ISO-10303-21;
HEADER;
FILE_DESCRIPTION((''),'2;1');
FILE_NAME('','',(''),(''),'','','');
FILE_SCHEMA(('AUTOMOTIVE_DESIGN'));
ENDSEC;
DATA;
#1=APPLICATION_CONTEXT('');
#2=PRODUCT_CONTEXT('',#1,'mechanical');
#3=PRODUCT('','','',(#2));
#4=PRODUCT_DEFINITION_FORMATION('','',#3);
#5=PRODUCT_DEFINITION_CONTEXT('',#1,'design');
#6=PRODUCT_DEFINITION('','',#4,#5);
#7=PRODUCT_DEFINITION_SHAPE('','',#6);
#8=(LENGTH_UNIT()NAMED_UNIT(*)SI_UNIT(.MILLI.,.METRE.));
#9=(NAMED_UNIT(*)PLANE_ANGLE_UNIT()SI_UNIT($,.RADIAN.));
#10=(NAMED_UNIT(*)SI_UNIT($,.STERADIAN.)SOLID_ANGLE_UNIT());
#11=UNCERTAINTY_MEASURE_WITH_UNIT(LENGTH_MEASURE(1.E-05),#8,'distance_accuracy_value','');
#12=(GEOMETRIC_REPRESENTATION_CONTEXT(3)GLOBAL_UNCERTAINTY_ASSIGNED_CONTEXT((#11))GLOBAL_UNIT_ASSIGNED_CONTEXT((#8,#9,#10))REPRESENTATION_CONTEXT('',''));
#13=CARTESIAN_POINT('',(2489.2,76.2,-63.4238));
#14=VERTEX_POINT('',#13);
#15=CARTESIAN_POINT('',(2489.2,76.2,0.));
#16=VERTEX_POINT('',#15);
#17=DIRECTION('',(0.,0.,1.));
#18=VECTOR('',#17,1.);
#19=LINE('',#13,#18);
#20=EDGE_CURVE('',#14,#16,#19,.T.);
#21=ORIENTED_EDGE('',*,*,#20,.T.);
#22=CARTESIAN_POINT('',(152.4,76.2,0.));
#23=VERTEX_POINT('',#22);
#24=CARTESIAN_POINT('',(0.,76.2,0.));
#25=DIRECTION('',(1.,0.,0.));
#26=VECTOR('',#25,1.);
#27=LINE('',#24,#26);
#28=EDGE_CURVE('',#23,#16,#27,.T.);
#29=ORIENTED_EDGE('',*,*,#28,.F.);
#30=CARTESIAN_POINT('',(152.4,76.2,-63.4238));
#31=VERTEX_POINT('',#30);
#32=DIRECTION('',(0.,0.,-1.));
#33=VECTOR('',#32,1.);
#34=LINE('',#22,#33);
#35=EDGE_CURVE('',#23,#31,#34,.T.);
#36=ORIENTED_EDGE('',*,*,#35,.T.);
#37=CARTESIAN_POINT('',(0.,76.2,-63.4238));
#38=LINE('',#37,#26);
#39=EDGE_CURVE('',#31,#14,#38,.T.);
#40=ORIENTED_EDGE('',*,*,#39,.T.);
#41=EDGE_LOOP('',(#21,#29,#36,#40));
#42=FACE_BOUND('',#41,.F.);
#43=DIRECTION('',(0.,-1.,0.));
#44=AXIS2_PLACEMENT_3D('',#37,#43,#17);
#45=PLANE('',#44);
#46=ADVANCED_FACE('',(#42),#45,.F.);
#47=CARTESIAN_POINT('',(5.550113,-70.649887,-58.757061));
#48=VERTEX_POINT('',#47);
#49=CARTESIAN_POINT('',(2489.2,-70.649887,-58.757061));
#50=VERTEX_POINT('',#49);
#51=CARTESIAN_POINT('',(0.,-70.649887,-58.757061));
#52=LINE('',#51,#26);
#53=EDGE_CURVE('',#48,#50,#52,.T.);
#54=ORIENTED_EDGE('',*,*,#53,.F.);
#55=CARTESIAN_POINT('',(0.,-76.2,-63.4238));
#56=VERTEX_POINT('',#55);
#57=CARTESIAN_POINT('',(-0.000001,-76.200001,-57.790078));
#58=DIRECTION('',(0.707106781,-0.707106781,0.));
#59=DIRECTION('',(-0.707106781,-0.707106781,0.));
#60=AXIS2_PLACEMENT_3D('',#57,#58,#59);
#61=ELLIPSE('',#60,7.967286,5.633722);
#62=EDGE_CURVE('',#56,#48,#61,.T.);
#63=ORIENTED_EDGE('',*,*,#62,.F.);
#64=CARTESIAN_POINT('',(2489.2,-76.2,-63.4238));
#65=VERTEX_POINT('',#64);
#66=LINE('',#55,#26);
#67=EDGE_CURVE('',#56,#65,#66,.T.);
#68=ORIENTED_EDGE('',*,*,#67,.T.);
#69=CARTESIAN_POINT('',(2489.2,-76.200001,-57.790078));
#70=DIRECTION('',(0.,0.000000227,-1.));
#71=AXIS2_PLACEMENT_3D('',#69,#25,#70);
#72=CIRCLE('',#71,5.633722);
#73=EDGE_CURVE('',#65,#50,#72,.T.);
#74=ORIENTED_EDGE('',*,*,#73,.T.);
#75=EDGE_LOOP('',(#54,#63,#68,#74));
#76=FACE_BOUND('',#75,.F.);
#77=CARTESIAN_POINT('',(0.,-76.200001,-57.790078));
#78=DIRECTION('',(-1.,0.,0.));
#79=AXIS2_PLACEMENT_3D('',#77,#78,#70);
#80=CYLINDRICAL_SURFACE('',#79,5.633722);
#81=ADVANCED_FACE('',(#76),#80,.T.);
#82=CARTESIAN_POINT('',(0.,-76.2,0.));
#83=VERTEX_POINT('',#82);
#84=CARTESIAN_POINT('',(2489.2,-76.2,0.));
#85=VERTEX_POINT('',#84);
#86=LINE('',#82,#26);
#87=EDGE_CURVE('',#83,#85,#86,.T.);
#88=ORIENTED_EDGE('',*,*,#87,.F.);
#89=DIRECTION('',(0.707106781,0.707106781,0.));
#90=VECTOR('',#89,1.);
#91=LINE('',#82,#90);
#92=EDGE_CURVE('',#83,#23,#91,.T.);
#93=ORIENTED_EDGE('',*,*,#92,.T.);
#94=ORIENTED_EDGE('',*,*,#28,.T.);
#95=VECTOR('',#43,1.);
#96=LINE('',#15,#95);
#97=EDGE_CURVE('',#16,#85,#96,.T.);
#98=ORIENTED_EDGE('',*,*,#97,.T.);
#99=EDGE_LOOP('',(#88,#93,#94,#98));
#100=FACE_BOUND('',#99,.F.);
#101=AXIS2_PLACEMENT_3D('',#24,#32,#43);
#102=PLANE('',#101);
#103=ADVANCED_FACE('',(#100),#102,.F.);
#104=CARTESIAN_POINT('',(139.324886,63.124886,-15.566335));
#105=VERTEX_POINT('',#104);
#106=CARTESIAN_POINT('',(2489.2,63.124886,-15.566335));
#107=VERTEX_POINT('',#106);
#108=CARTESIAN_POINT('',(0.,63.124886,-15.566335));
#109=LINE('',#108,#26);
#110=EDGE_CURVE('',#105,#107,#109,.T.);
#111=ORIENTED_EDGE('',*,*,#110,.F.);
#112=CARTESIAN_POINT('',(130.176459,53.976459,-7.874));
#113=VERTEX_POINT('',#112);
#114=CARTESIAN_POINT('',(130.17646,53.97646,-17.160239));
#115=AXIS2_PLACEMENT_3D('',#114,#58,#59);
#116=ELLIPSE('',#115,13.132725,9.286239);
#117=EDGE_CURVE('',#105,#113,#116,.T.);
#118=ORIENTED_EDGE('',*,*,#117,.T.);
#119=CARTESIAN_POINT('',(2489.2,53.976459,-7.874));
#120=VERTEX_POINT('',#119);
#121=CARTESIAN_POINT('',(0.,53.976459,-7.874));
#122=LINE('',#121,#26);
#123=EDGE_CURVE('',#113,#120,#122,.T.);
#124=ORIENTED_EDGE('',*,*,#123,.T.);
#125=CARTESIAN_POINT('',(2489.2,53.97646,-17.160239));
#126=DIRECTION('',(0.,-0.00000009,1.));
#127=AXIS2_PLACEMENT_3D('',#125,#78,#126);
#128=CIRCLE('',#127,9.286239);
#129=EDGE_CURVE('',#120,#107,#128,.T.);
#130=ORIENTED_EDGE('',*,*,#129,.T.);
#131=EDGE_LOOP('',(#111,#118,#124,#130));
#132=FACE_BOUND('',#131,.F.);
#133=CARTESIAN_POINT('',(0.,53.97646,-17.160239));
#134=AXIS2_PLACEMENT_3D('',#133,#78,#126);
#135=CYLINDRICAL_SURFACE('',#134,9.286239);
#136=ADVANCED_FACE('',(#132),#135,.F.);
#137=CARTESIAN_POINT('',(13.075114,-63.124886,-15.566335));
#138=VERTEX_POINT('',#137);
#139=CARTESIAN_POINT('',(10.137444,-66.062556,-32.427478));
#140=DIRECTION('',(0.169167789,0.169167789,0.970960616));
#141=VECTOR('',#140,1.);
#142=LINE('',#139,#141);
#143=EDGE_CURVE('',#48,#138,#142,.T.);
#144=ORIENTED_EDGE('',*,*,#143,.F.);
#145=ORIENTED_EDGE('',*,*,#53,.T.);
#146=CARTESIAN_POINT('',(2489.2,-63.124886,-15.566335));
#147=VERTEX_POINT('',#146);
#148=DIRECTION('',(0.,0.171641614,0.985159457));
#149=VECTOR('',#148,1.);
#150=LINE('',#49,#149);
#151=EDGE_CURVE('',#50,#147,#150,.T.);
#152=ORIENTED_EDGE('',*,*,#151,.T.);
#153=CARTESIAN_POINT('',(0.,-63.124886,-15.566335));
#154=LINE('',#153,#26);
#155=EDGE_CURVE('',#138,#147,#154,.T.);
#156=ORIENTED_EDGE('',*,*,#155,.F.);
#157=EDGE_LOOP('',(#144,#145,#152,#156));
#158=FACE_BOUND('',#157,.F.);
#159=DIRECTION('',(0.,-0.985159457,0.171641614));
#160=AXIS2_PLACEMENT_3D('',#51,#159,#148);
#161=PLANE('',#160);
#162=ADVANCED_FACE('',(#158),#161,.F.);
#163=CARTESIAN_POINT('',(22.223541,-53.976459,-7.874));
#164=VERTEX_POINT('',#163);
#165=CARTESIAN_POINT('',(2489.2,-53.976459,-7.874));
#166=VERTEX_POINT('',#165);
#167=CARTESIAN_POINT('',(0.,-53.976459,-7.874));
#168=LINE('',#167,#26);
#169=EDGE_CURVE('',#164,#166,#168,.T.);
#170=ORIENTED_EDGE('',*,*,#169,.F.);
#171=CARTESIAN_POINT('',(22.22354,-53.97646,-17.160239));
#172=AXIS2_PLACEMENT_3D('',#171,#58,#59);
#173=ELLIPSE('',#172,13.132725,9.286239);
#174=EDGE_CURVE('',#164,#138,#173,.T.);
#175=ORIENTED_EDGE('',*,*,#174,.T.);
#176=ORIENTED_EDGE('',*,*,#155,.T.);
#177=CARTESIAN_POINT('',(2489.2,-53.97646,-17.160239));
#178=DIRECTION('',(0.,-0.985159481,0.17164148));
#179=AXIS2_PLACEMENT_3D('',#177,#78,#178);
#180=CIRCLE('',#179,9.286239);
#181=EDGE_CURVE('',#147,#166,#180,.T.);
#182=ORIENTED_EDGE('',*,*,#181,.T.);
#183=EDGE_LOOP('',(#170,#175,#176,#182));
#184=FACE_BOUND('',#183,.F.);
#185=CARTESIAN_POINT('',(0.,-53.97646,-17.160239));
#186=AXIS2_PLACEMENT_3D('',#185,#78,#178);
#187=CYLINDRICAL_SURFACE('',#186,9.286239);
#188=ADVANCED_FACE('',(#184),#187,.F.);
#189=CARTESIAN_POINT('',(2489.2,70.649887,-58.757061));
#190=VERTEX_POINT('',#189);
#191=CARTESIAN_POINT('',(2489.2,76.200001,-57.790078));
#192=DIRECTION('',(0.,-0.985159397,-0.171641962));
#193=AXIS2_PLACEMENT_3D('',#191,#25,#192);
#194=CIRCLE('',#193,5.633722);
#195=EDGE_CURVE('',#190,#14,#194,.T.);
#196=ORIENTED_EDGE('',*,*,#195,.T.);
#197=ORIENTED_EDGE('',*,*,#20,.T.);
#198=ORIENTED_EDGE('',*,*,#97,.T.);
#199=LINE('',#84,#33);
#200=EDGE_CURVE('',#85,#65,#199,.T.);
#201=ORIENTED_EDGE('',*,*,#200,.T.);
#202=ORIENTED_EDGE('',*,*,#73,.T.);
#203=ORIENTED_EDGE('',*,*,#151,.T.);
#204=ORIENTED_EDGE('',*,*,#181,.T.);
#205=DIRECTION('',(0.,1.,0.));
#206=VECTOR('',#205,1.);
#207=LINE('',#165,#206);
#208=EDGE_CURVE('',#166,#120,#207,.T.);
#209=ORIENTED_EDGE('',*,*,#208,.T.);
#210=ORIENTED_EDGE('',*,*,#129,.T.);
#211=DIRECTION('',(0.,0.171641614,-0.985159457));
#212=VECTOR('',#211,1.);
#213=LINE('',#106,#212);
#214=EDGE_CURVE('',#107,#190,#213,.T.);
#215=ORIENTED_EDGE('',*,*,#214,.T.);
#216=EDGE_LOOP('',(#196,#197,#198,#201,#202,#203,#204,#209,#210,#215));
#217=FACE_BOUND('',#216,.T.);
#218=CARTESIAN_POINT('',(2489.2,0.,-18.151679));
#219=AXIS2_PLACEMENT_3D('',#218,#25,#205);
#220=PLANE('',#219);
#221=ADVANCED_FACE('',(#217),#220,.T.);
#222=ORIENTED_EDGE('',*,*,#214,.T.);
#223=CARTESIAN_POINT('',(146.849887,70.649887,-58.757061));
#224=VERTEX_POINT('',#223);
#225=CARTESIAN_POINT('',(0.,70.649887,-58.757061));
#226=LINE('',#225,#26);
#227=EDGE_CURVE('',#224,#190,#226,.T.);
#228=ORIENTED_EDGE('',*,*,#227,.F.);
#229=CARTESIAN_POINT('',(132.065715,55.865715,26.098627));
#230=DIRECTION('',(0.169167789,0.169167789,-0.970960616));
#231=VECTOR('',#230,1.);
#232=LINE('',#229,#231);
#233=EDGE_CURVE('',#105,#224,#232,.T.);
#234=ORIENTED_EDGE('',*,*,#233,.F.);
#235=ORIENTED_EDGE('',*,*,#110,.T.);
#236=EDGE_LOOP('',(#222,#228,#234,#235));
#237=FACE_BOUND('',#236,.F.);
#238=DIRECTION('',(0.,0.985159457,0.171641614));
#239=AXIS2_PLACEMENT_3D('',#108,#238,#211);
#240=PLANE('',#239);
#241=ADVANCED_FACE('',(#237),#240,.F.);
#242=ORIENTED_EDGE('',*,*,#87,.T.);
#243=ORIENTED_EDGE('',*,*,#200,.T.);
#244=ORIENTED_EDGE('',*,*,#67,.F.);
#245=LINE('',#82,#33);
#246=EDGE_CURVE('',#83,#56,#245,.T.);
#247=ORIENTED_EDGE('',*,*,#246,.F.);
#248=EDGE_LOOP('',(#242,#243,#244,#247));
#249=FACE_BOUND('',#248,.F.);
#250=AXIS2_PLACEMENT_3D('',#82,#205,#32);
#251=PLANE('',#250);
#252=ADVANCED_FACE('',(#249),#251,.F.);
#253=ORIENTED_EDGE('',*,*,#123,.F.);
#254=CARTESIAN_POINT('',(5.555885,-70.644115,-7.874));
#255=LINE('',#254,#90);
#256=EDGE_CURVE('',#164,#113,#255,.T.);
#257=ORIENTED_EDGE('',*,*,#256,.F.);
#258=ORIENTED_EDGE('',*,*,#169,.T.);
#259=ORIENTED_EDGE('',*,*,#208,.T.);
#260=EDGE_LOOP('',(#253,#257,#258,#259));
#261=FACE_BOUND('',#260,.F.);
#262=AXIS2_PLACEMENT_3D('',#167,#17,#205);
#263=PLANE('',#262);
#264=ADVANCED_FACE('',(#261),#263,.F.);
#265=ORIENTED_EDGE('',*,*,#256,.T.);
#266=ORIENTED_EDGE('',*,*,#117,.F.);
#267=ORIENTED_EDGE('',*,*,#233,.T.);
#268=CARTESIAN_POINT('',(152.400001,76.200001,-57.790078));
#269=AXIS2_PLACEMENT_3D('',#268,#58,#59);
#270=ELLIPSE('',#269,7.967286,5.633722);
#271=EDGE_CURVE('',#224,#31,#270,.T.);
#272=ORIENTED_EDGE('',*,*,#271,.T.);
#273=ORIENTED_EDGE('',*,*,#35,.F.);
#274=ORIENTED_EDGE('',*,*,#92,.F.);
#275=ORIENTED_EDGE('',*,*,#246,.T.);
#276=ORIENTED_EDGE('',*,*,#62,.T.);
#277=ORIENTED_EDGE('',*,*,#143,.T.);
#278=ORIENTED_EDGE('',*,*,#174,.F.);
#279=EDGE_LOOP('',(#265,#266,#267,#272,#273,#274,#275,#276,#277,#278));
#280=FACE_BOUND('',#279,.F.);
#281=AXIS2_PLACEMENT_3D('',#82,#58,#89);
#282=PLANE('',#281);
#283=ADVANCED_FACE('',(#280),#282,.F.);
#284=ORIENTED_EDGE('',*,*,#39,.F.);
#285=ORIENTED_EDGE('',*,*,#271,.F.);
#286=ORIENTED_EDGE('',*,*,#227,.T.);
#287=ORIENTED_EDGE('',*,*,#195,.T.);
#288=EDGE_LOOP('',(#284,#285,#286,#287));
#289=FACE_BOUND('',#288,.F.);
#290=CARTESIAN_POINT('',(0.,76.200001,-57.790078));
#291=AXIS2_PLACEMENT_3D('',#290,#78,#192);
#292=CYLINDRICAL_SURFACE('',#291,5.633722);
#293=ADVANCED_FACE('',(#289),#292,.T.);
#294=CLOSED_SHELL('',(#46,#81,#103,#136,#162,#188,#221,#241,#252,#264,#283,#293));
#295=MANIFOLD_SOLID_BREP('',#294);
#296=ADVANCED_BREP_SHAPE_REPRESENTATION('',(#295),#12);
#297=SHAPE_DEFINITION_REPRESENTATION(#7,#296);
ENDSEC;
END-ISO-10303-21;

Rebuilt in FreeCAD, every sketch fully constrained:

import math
import FreeCAD as App
import Part
import Sketcher

V = App.Vector
Q = App.Units.Quantity


def add_polygon(sketch, points):
    """Adds a closed chain of lines whose ends are joined by coincident constraints."""
    first, n = sketch.GeometryCount, len(points)
    for a, b in zip(points, points[1:] + points[:1]):
        sketch.addGeometry(Part.LineSegment(App.Vector(*a, 0), App.Vector(*b, 0)), False)
    for i in range(n):
        sketch.addConstraint(Sketcher.Constraint("Coincident", first + i, 2, first + (i + 1) % n, 1))

doc = App.newDocument("Part")
body = doc.addObject("PartDesign::Body", "Body")

sketch1 = body.newObject("Sketcher::SketchObject", "Sketch")
sketch1.AttachmentSupport = (doc.getObject("YZ_Plane"), [""])
sketch1.MapMode = "FlatFace"
sketch1.addGeometry(Part.LineSegment(V(76, 0, 0), V(-76, 0, 0)), False)
sketch1.addGeometry(Part.LineSegment(V(-76, 0, 0), V(-76, -63, 0)), False)
sketch1.addGeometry(Part.ArcOfCircle(Part.Circle(V(-76, -58, 0), V(0, 0, 1), 6), math.radians(-90), math.radians(-10)), False)
sketch1.addGeometry(Part.LineSegment(V(-71, -59, 0), V(-63, -16, 0)), False)
sketch1.addGeometry(Part.ArcOfCircle(Part.Circle(V(-54, -17, 0), V(0, 0, 1), 9), math.radians(90), math.radians(170)), False)
sketch1.addGeometry(Part.LineSegment(V(-54, -8, 0), V(54, -8, 0)), False)
sketch1.addGeometry(Part.ArcOfCircle(Part.Circle(V(54, -17, 0), V(0, 0, 1), 9), math.radians(10), math.radians(90)), False)
sketch1.addGeometry(Part.LineSegment(V(63, -16, 0), V(71, -59, 0)), False)
sketch1.addGeometry(Part.ArcOfCircle(Part.Circle(V(76, -58, 0), V(0, 0, 1), 6), math.radians(-170), math.radians(-90)), False)
sketch1.addGeometry(Part.LineSegment(V(76, -63, 0), V(76, 0, 0)), False)
sketch1.addConstraint(Sketcher.Constraint("Coincident", 0, 2, 1, 1))
sketch1.addConstraint(Sketcher.Constraint("Coincident", 1, 2, 2, 1))
sketch1.addConstraint(Sketcher.Constraint("Tangent", 2, 2, 3, 1))
sketch1.addConstraint(Sketcher.Constraint("Tangent", 3, 2, 4, 2))
sketch1.addConstraint(Sketcher.Constraint("Tangent", 4, 1, 5, 1))
sketch1.addConstraint(Sketcher.Constraint("Tangent", 5, 2, 6, 2))
sketch1.addConstraint(Sketcher.Constraint("Tangent", 6, 1, 7, 1))
sketch1.addConstraint(Sketcher.Constraint("Tangent", 7, 2, 8, 1))
sketch1.addConstraint(Sketcher.Constraint("Coincident", 8, 2, 9, 1))
sketch1.addConstraint(Sketcher.Constraint("Coincident", 9, 2, 0, 1))
sketch1.addConstraint(Sketcher.Constraint("Horizontal", 0))
sketch1.addConstraint(Sketcher.Constraint("Vertical", 1))
sketch1.addConstraint(Sketcher.Constraint("Horizontal", 5))
sketch1.addConstraint(Sketcher.Constraint("Vertical", 9))
sketch1.addConstraint(Sketcher.Constraint("Equal", 4, 6))
sketch1.addConstraint(Sketcher.Constraint("Equal", 2, 8))
sketch1.addConstraint(Sketcher.Constraint("Symmetric", 0, 2, 9, 2, -1, 1))
sketch1.addConstraint(Sketcher.Constraint("Symmetric", 2, 3, 8, 3, -2))
sketch1.addConstraint(Sketcher.Constraint("Horizontal", 3, 2, 6, 1))
sketch1.addConstraint(Sketcher.Constraint("Vertical", 2, 3, 0, 2))
sketch1.addConstraint(Sketcher.Constraint("DistanceX", 0, 2, 0, 1, Q("6 in")))
sketch1.addConstraint(Sketcher.Constraint("Radius", 2, Q("0.2218001 in")))
sketch1.addConstraint(Sketcher.Constraint("Radius", 4, Q("0.3656 in")))
sketch1.addConstraint(Sketcher.Constraint("DistanceY", 1, 2, 1, 1, Q("2.497 in")))
sketch1.addConstraint(Sketcher.Constraint("DistanceY", 4, 1, -1, 1, Q("0.31 in")))
sketch1.addConstraint(Sketcher.Constraint("DistanceX", 2, 2, 3, 2, Q("7.525001 mm")))
pad1 = body.newObject("PartDesign::Pad", "Pad")
pad1.Profile = sketch1
pad1.Length = Q("98 in")

sketch2 = body.newObject("Sketcher::SketchObject", "Sketch001")
sketch2.AttachmentSupport = (doc.getObject("XY_Plane"), [""])
sketch2.MapMode = "FlatFace"
add_polygon(sketch2, [(0, 76), (0, -76), (152, 76)])
sketch2.addConstraint(Sketcher.Constraint("Vertical", 0))
sketch2.addConstraint(Sketcher.Constraint("Horizontal", 2))
sketch2.addConstraint(Sketcher.Constraint("Symmetric", 0, 2, 2, 2, -1, 1))
sketch2.addConstraint(Sketcher.Constraint("Equal", 2, 0))
sketch2.addConstraint(Sketcher.Constraint("DistanceX", 2, 2, 2, 1, Q("6 in")))
pocket1 = body.newObject("PartDesign::Pocket", "Pocket")
pocket1.Profile = sketch2
pocket1.Type = "ThroughAll"

doc.recompute()
